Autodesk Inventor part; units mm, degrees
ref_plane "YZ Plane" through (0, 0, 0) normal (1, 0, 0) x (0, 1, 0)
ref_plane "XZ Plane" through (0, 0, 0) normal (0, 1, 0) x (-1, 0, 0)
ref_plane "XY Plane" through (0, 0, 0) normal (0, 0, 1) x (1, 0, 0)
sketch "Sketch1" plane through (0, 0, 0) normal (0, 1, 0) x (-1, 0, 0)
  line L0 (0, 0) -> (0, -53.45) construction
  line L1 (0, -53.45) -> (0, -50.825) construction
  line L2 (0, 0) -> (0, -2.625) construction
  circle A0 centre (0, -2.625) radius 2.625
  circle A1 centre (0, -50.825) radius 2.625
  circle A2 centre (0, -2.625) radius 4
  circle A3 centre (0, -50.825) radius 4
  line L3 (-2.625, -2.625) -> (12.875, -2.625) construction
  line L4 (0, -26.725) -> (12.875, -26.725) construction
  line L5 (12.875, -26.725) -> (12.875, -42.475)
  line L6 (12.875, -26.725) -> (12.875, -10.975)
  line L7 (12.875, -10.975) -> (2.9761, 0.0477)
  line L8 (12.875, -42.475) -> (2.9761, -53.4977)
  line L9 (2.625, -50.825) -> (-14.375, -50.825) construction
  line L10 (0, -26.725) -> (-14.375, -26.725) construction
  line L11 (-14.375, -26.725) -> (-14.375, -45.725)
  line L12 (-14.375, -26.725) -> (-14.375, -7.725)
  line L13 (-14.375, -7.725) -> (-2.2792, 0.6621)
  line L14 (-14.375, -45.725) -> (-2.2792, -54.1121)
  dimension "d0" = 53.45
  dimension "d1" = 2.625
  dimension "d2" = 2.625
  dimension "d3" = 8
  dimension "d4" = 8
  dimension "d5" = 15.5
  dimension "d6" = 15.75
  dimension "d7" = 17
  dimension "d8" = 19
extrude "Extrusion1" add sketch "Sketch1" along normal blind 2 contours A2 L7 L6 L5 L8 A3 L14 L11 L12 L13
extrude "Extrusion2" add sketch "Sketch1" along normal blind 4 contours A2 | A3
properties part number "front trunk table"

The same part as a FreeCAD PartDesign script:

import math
import FreeCAD as App
import Part
import Sketcher
from FreeCAD import Vector

doc = App.newDocument("Part")
body = doc.addObject("PartDesign::Body", "Body")

# Sketch on XZ plane
sketch1 = body.newObject("Sketcher::SketchObject", "Sketch")
sketch1.AttachmentSupport = (doc.getObject("XZ_Plane"), [""])
sketch1.MapMode = "FlatFace"
sketch1.addGeometry(Part.ArcOfCircle(Part.Circle(Vector(0, -2.6, 0), Vector(0, 0, 1), 4), math.radians(138), math.radians(415)), False)
sketch1.addGeometry(Part.LineSegment(Vector(2.3, 0.7, 0), Vector(14.4, -7.7, 0)), False)
sketch1.addGeometry(Part.LineSegment(Vector(14.4, -7.7, 0), Vector(14.4, -45.7, 0)), False)
sketch1.addGeometry(Part.LineSegment(Vector(14.4, -45.7, 0), Vector(2.3, -54.1, 0)), False)
sketch1.addGeometry(Part.ArcOfCircle(Part.Circle(Vector(0, -50.8, 0), Vector(0, 0, 1), 4), math.radians(-55), math.radians(222)), False)
sketch1.addGeometry(Part.LineSegment(Vector(-3, -53.5, 0), Vector(-12.9, -42.5, 0)), False)
sketch1.addGeometry(Part.LineSegment(Vector(-12.9, -42.5, 0), Vector(-12.9, -11, 0)), False)
sketch1.addGeometry(Part.LineSegment(Vector(-12.9, -11, 0), Vector(-3, 0, 0)), False)
sketch1.addConstraint(Sketcher.Constraint("Tangent", 0, 2, 1, 1))
sketch1.addConstraint(Sketcher.Constraint("Coincident", 1, 2, 2, 1))
sketch1.addConstraint(Sketcher.Constraint("Coincident", 2, 2, 3, 1))
sketch1.addConstraint(Sketcher.Constraint("Tangent", 3, 2, 4, 1))
sketch1.addConstraint(Sketcher.Constraint("Tangent", 4, 2, 5, 1))
sketch1.addConstraint(Sketcher.Constraint("Coincident", 5, 2, 6, 1))
sketch1.addConstraint(Sketcher.Constraint("Coincident", 6, 2, 7, 1))
sketch1.addConstraint(Sketcher.Constraint("Tangent", 7, 2, 0, 1))
sketch1.addConstraint(Sketcher.Constraint("Vertical", 2))
sketch1.addConstraint(Sketcher.Constraint("Vertical", 6))
sketch1.addConstraint(Sketcher.Constraint("Equal", 0, 4))
sketch1.addConstraint(Sketcher.Constraint("PointOnObject", 0, 3, -2))
sketch1.addConstraint(Sketcher.Constraint("PointOnObject", 4, 3, -2))
sketch1.addConstraint(Sketcher.Constraint("Vertical", 0, 2, 3, 2))
sketch1.addConstraint(Sketcher.Constraint("Vertical", 4, 2, 7, 2))
sketch1.addConstraint(Sketcher.Constraint("Radius", 0, 4.0))
sketch1.addConstraint(Sketcher.Constraint("DistanceY", 2, 2, 2, 1, 38.0))
sketch1.addConstraint(Sketcher.Constraint("DistanceY", 6, 1, 6, 2, 31.5))
sketch1.addConstraint(Sketcher.Constraint("DistanceY", 0, 3, -1, 1, 2.625))
sketch1.addConstraint(Sketcher.Constraint("DistanceY", 4, 3, 0, 3, 48.2))
sketch1.addConstraint(Sketcher.Constraint("DistanceX", 5, 2, 2, 2, 27.25))
sketch1.addConstraint(Sketcher.Constraint("Distance", 1, 14.719))
pad1 = body.newObject("PartDesign::Pad", "Pad")
pad1.Profile = sketch1
pad1.Length = 2
pad1.Reversed = True

# Sketch on XZ plane
sketch2 = body.newObject("Sketcher::SketchObject", "Sketch001")
sketch2.AttachmentSupport = (doc.getObject("XZ_Plane"), [""])
sketch2.MapMode = "FlatFace"
sketch2.addGeometry(Part.Circle(Vector(0, -2.6, 0), Vector(0, 0, 1), 4), False)
sketch2.addGeometry(Part.Circle(Vector(0, -2.6, 0), Vector(0, 0, 1), 2.6), False)
sketch2.addGeometry(Part.Circle(Vector(0, -50.8, 0), Vector(0, 0, 1), 4), False)
sketch2.addGeometry(Part.Circle(Vector(0, -50.8, 0), Vector(0, 0, 1), 2.6), False)
sketch2.addConstraint(Sketcher.Constraint("Coincident", 1, 3, 0, 3))
sketch2.addConstraint(Sketcher.Constraint("Coincident", 3, 3, 2, 3))
sketch2.addConstraint(Sketcher.Constraint("Equal", 0, 2))
sketch2.addConstraint(Sketcher.Constraint("Equal", 1, 3))
sketch2.addConstraint(Sketcher.Constraint("PointOnObject", 0, 3, -2))
sketch2.addConstraint(Sketcher.Constraint("PointOnObject", 2, 3, -2))
sketch2.addConstraint(Sketcher.Constraint("Diameter", 0, 8.0))
sketch2.addConstraint(Sketcher.Constraint("Diameter", 1, 5.25))
sketch2.addConstraint(Sketcher.Constraint("DistanceY", 0, 3, -1, 1, 2.625))
sketch2.addConstraint(Sketcher.Constraint("DistanceY", 2, 3, 0, 3, 48.2))
pad2 = body.newObject("PartDesign::Pad", "Pad001")
pad2.Profile = sketch2
pad2.Length = 4
pad2.Reversed = True

doc.recompute()
